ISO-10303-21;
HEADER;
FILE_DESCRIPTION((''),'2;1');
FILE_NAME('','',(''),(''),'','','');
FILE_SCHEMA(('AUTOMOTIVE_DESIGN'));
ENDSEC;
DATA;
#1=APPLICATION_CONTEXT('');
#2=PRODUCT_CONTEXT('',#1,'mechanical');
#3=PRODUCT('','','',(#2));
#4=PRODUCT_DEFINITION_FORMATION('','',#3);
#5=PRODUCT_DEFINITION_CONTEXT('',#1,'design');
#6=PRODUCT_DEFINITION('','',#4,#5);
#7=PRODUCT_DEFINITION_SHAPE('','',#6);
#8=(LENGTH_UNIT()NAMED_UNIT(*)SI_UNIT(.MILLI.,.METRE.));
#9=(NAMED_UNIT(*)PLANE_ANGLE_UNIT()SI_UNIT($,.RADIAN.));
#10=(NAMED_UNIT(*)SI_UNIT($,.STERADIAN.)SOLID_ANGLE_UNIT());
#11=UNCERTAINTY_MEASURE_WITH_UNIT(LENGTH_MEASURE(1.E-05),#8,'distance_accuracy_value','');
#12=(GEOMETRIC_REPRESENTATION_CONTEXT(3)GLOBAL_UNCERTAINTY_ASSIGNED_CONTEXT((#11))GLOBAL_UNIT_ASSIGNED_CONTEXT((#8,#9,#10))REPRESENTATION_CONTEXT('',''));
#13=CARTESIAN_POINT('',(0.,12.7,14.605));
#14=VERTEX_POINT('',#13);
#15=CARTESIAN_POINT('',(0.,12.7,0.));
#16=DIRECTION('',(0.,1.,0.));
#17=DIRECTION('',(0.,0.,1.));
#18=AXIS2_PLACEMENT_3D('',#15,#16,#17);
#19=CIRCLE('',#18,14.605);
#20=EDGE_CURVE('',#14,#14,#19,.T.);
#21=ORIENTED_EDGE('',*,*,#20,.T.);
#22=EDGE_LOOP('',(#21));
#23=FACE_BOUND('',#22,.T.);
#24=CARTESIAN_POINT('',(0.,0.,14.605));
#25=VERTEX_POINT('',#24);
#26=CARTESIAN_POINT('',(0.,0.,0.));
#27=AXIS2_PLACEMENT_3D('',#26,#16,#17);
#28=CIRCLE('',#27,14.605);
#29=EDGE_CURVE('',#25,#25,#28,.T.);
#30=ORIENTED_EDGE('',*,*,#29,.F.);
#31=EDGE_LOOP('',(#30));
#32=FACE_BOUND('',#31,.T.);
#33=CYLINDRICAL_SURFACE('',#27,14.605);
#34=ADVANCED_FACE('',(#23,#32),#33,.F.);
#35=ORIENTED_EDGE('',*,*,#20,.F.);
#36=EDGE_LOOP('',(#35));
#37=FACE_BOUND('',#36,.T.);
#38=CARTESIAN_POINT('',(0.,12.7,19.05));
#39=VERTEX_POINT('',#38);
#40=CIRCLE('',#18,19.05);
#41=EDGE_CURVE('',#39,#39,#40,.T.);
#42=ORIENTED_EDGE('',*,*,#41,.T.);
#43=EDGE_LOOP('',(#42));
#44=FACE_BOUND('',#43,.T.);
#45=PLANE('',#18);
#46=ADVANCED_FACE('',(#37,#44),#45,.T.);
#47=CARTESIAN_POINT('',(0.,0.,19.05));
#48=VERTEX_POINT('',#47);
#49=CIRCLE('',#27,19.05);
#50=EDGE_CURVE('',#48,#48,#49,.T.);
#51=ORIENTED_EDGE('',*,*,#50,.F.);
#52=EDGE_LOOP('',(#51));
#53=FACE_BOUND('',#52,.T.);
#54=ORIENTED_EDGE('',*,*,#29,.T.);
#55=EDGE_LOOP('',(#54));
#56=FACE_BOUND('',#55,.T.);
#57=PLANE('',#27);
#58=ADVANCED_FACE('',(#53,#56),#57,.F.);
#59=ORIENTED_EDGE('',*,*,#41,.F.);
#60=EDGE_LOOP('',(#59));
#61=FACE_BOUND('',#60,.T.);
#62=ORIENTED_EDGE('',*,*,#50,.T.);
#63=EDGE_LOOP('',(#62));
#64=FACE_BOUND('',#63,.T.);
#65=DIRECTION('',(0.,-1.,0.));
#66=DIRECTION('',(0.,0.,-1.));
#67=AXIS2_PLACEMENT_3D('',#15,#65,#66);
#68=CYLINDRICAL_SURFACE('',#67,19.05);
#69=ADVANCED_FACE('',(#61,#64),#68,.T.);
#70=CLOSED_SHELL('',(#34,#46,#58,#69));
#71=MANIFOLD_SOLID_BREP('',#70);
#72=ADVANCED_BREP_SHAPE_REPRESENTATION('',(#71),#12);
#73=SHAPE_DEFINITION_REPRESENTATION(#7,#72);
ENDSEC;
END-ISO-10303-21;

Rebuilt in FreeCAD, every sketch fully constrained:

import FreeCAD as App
import Part
import Sketcher

V = App.Vector
Q = App.Units.Quantity

doc = App.newDocument("Part")
body = doc.addObject("PartDesign::Body", "Body")

# Sketch on XZ plane
sketch1 = doc.addObject("Sketcher::SketchObject", "Sketch")
body.addObject(sketch1)
sketch1.AttachmentSupport = (doc.XZ_Plane, [""])
sketch1.MapMode = "FlatFace"
sketch1.addGeometry(Part.Circle(V(0, 0, 0), V(0, 0, 1), 19.05), False)
sketch1.addConstraint(Sketcher.Constraint("Coincident", 0, 3, -1, 1))
sketch1.addConstraint(Sketcher.Constraint("Diameter", 0, Q("1.5 in")))
pad1 = doc.addObject("PartDesign::Pad", "Pad")
body.addObject(pad1)
pad1.Profile = sketch1
pad1.Length = Q("0.5 in")
pad1.Reversed = True

# Sketch on XZ plane
sketch2 = doc.addObject("Sketcher::SketchObject", "Sketch001")
body.addObject(sketch2)
sketch2.AttachmentSupport = (doc.XZ_Plane, [""])
sketch2.MapMode = "FlatFace"
sketch2.AttachmentOffset = App.Placement(V(0, 0, -0.5 * 25.4), App.Rotation())
sketch2.addGeometry(Part.Circle(V(0, 0, 0), V(0, 0, 1), 14.605), False)
sketch2.addConstraint(Sketcher.Constraint("Coincident", 0, 3, -1, 1))
sketch2.addConstraint(Sketcher.Constraint("Diameter", 0, Q("1.15 in")))
pocket1 = doc.addObject("PartDesign::Pocket", "Pocket")
body.addObject(pocket1)
pocket1.Profile = sketch2
pocket1.Type = "ThroughAll"
pocket1.Reversed = True

doc.recompute()
